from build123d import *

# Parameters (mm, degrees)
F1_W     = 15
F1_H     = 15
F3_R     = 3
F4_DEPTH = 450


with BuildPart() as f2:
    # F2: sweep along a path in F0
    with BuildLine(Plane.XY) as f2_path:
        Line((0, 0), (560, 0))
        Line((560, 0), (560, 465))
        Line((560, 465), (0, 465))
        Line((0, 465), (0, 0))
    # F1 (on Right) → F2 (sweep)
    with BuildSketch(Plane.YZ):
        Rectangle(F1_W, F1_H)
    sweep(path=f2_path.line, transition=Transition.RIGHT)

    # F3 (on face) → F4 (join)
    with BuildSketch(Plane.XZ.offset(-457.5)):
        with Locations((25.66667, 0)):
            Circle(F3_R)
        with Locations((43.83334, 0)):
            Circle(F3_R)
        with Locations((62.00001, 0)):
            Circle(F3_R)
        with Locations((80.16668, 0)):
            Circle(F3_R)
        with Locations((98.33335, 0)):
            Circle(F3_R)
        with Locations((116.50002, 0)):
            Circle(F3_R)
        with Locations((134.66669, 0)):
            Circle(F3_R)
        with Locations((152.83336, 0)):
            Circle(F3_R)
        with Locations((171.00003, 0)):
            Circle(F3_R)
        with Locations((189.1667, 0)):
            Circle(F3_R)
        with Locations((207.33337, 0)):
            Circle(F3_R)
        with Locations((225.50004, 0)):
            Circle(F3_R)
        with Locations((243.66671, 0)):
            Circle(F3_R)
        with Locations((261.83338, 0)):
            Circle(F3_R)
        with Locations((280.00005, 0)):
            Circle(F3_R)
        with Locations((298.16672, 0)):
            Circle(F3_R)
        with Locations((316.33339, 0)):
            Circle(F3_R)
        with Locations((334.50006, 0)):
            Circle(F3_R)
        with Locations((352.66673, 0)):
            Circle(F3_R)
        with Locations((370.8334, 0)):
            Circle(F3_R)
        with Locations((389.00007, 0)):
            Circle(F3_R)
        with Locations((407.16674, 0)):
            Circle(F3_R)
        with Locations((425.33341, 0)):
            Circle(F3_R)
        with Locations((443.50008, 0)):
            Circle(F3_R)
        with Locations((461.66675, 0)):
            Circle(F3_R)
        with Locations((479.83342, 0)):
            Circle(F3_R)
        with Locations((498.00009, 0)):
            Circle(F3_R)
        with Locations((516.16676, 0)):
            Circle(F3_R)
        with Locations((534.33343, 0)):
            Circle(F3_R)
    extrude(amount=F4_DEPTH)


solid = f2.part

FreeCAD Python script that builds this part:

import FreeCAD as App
import Part
import Sketcher
Q = App.Units.Quantity


def add_polygon(sketch, points):
    """Adds a closed chain of lines whose ends are joined by coincident constraints."""
    first, n = sketch.GeometryCount, len(points)
    for a, b in zip(points, points[1:] + points[:1]):
        sketch.addGeometry(Part.LineSegment(App.Vector(*a, 0), App.Vector(*b, 0)), False)
    for i in range(n):
        sketch.addConstraint(Sketcher.Constraint("Coincident", first + i, 2, first + (i + 1) % n, 1))

doc = App.newDocument("Part")
params = doc.addObject("Spreadsheet::Sheet", "Params")
for row, (alias, value) in enumerate([
    ("sketch1_width", "15 mm"),
    ("sketch2_width", "560 mm"),
    ("sketch2_height", "465 mm"),
    ("sketch3_diameter", "6 mm"),
    ("pad1_length", "450 mm"),
], start=1):
    params.set(f"A{row}", alias)
    params.set(f"B{row}", "=" + value)
    params.setAlias(f"B{row}", alias)

body = doc.addObject("PartDesign::Body", "Body")

# Sketch on YZ plane
sketch1 = body.newObject("Sketcher::SketchObject", "Sketch")
sketch1.AttachmentSupport = (doc.getObject("YZ_Plane"), [""])
sketch1.MapMode = "FlatFace"
add_polygon(sketch1, [(-7.5, 7.5), (-7.5, -7.5), (7.5, -7.5), (7.5, 7.5)])  # lines 0-3
sketch1.addConstraint([
    Sketcher.Constraint("Vertical", 0),
    Sketcher.Constraint("Horizontal", 1),
    Sketcher.Constraint("Vertical", 2),
    Sketcher.Constraint("Horizontal", 3),
    Sketcher.Constraint("Symmetric", 0, 2, 2, 2, -1, 1),
    Sketcher.Constraint("Equal", 3, 0),
    Sketcher.Constraint("DistanceX", 1, 1, 1, 2, Q("15 mm")),
])
sketch1.setExpression("Constraints[10]", "Params.sketch1_width")

# Sketch on XY plane
sketch2 = body.newObject("Sketcher::SketchObject", "Sketch001")
sketch2.AttachmentSupport = (doc.getObject("XY_Plane"), [""])
sketch2.MapMode = "FlatFace"
add_polygon(sketch2, [(0, 0), (560, 0), (560, 465), (0, 465)])  # lines 0-3
sketch2.addConstraint([
    Sketcher.Constraint("Horizontal", 0),
    Sketcher.Constraint("Vertical", 1),
    Sketcher.Constraint("Horizontal", 2),
    Sketcher.Constraint("Vertical", 3),
    Sketcher.Constraint("Coincident", 3, 2, -1, 1),
    Sketcher.Constraint("DistanceX", 0, 1, 0, 2, Q("560 mm")),
    Sketcher.Constraint("DistanceY", 1, 1, 1, 2, Q("465 mm")),
])
sketch2.setExpression("Constraints[9]", "Params.sketch2_width")
sketch2.setExpression("Constraints[10]", "Params.sketch2_height")
doc.recompute()

additivepipe = body.newObject("PartDesign::AdditivePipe", "AdditivePipe")
additivepipe.Profile = sketch1
additivepipe.Spine = (sketch2, ["Edge1", "Edge2", "Edge3", "Edge4"])
additivepipe.Transition = "Right corner"

# Sketch on XZ plane
sketch3 = body.newObject("Sketcher::SketchObject", "Sketch002")
sketch3.AttachmentSupport = (doc.getObject("XZ_Plane"), [""])
sketch3.MapMode = "FlatFace"
sketch3.AttachmentOffset = App.Placement(App.Vector(0, 0, -457.5), App.Rotation())
sketch3.addGeometry([
    Part.Circle(App.Vector(25.66667, 0, 0), App.Vector(0, 0, 1), 3),  # 0
    Part.Circle(App.Vector(43.83334, 0, 0), App.Vector(0, 0, 1), 3),  # 1
    Part.Circle(App.Vector(62.00001, 0, 0), App.Vector(0, 0, 1), 3),  # 2
    Part.Circle(App.Vector(80.16668, 0, 0), App.Vector(0, 0, 1), 3),  # 3
    Part.Circle(App.Vector(98.33335, 0, 0), App.Vector(0, 0, 1), 3),  # 4
    Part.Circle(App.Vector(116.50002, 0, 0), App.Vector(0, 0, 1), 3),  # 5
    Part.Circle(App.Vector(134.66669, 0, 0), App.Vector(0, 0, 1), 3),  # 6
    Part.Circle(App.Vector(152.83336, 0, 0), App.Vector(0, 0, 1), 3),  # 7
    Part.Circle(App.Vector(171.00003, 0, 0), App.Vector(0, 0, 1), 3),  # 8
    Part.Circle(App.Vector(189.1667, 0, 0), App.Vector(0, 0, 1), 3),  # 9
    Part.Circle(App.Vector(207.33337, 0, 0), App.Vector(0, 0, 1), 3),  # 10
    Part.Circle(App.Vector(225.50004, 0, 0), App.Vector(0, 0, 1), 3),  # 11
    Part.Circle(App.Vector(243.66671, 0, 0), App.Vector(0, 0, 1), 3),  # 12
    Part.Circle(App.Vector(261.83338, 0, 0), App.Vector(0, 0, 1), 3),  # 13
    Part.Circle(App.Vector(280.00005, 0, 0), App.Vector(0, 0, 1), 3),  # 14
    Part.Circle(App.Vector(298.16672, 0, 0), App.Vector(0, 0, 1), 3),  # 15
    Part.Circle(App.Vector(316.33339, 0, 0), App.Vector(0, 0, 1), 3),  # 16
    Part.Circle(App.Vector(334.50006, 0, 0), App.Vector(0, 0, 1), 3),  # 17
    Part.Circle(App.Vector(352.66673, 0, 0), App.Vector(0, 0, 1), 3),  # 18
    Part.Circle(App.Vector(370.8334, 0, 0), App.Vector(0, 0, 1), 3),  # 19
    Part.Circle(App.Vector(389.00007, 0, 0), App.Vector(0, 0, 1), 3),  # 20
    Part.Circle(App.Vector(407.16674, 0, 0), App.Vector(0, 0, 1), 3),  # 21
    Part.Circle(App.Vector(425.33341, 0, 0), App.Vector(0, 0, 1), 3),  # 22
    Part.Circle(App.Vector(443.50008, 0, 0), App.Vector(0, 0, 1), 3),  # 23
    Part.Circle(App.Vector(461.66675, 0, 0), App.Vector(0, 0, 1), 3),  # 24
    Part.Circle(App.Vector(479.83342, 0, 0), App.Vector(0, 0, 1), 3),  # 25
    Part.Circle(App.Vector(498.00009, 0, 0), App.Vector(0, 0, 1), 3),  # 26
    Part.Circle(App.Vector(516.16676, 0, 0), App.Vector(0, 0, 1), 3),  # 27
    Part.Circle(App.Vector(534.33343, 0, 0), App.Vector(0, 0, 1), 3),  # 28
], False)
sketch3.addConstraint([
    Sketcher.Constraint("Equal", 0, 1),
    Sketcher.Constraint("Equal", 1, 2),
    Sketcher.Constraint("Equal", 2, 3),
    Sketcher.Constraint("Equal", 3, 4),
    Sketcher.Constraint("Equal", 4, 5),
    Sketcher.Constraint("Equal", 5, 6),
    Sketcher.Constraint("Equal", 6, 7),
    Sketcher.Constraint("Equal", 7, 8),
    Sketcher.Constraint("Equal", 8, 9),
    Sketcher.Constraint("Equal", 9, 10),
    Sketcher.Constraint("Equal", 10, 11),
    Sketcher.Constraint("Equal", 11, 12),
    Sketcher.Constraint("Equal", 12, 13),
    Sketcher.Constraint("Equal", 13, 14),
    Sketcher.Constraint("Equal", 14, 15),
    Sketcher.Constraint("Equal", 15, 16),
    Sketcher.Constraint("Equal", 16, 17),
    Sketcher.Constraint("Equal", 17, 18),
    Sketcher.Constraint("Equal", 18, 19),
    Sketcher.Constraint("Equal", 19, 20),
    Sketcher.Constraint("Equal", 20, 21),
    Sketcher.Constraint("Equal", 21, 22),
    Sketcher.Constraint("Equal", 22, 23),
    Sketcher.Constraint("Equal", 23, 24),
    Sketcher.Constraint("Equal", 24, 25),
    Sketcher.Constraint("Equal", 25, 26),
    Sketcher.Constraint("Equal", 26, 27),
    Sketcher.Constraint("Equal", 27, 28),
    Sketcher.Constraint("PointOnObject", 0, 3, -1),
    Sketcher.Constraint("PointOnObject", 1, 3, -1),
    Sketcher.Constraint("PointOnObject", 2, 3, -1),
    Sketcher.Constraint("PointOnObject", 3, 3, -1),
    Sketcher.Constraint("PointOnObject", 4, 3, -1),
    Sketcher.Constraint("PointOnObject", 5, 3, -1),
    Sketcher.Constraint("PointOnObject", 6, 3, -1),
    Sketcher.Constraint("PointOnObject", 7, 3, -1),
    Sketcher.Constraint("PointOnObject", 8, 3, -1),
    Sketcher.Constraint("PointOnObject", 9, 3, -1),
    Sketcher.Constraint("PointOnObject", 10, 3, -1),
    Sketcher.Constraint("PointOnObject", 11, 3, -1),
    Sketcher.Constraint("PointOnObject", 12, 3, -1),
    Sketcher.Constraint("PointOnObject", 13, 3, -1),
    Sketcher.Constraint("PointOnObject", 14, 3, -1),
    Sketcher.Constraint("PointOnObject", 15, 3, -1),
    Sketcher.Constraint("PointOnObject", 16, 3, -1),
    Sketcher.Constraint("PointOnObject", 17, 3, -1),
    Sketcher.Constraint("PointOnObject", 18, 3, -1),
    Sketcher.Constraint("PointOnObject", 19, 3, -1),
    Sketcher.Constraint("PointOnObject", 20, 3, -1),
    Sketcher.Constraint("PointOnObject", 21, 3, -1),
    Sketcher.Constraint("PointOnObject", 22, 3, -1),
    Sketcher.Constraint("PointOnObject", 23, 3, -1),
    Sketcher.Constraint("PointOnObject", 24, 3, -1),
    Sketcher.Constraint("PointOnObject", 25, 3, -1),
    Sketcher.Constraint("PointOnObject", 26, 3, -1),
    Sketcher.Constraint("PointOnObject", 27, 3, -1),
    Sketcher.Constraint("PointOnObject", 28, 3, -1),
    Sketcher.Constraint("Diameter", 0, Q("6 mm")),
    Sketcher.Constraint("DistanceX", -1, 1, 9, 3, Q("189.1667 mm")),
    Sketcher.Constraint("DistanceX", -1, 1, 19, 3, Q("370.8334 mm")),
    Sketcher.Constraint("DistanceX", -1, 1, 0, 3, Q("25.66667 mm")),
    Sketcher.Constraint("DistanceX", -1, 1, 1, 3, Q("43.83334 mm")),
    Sketcher.Constraint("DistanceX", -1, 1, 2, 3, Q("62.00001 mm")),
    Sketcher.Constraint("DistanceX", -1, 1, 3, 3, Q("80.16668 mm")),
    Sketcher.Constraint("DistanceX", -1, 1, 4, 3, Q("98.33335 mm")),
    Sketcher.Constraint("DistanceX", -1, 1, 5, 3, Q("116.50002 mm")),
    Sketcher.Constraint("DistanceX", -1, 1, 6, 3, Q("134.66669 mm")),
    Sketcher.Constraint("DistanceX", -1, 1, 7, 3, Q("152.83336 mm")),
    Sketcher.Constraint("DistanceX", -1, 1, 8, 3, Q("171.00003 mm")),
    Sketcher.Constraint("DistanceX", -1, 1, 10, 3, Q("207.33337 mm")),
    Sketcher.Constraint("DistanceX", -1, 1, 11, 3, Q("225.50004 mm")),
    Sketcher.Constraint("DistanceX", -1, 1, 12, 3, Q("243.66671 mm")),
    Sketcher.Constraint("DistanceX", -1, 1, 13, 3, Q("261.83338 mm")),
    Sketcher.Constraint("DistanceX", -1, 1, 14, 3, Q("280.00005 mm")),
    Sketcher.Constraint("DistanceX", -1, 1, 15, 3, Q("298.16672 mm")),
    Sketcher.Constraint("DistanceX", -1, 1, 16, 3, Q("316.33339 mm")),
    Sketcher.Constraint("DistanceX", -1, 1, 17, 3, Q("334.50006 mm")),
    Sketcher.Constraint("DistanceX", -1, 1, 18, 3, Q("352.66673 mm")),
    Sketcher.Constraint("DistanceX", -1, 1, 20, 3, Q("389.00007 mm")),
    Sketcher.Constraint("DistanceX", -1, 1, 21, 3, Q("407.16674 mm")),
    Sketcher.Constraint("DistanceX", -1, 1, 22, 3, Q("425.33341 mm")),
    Sketcher.Constraint("DistanceX", -1, 1, 23, 3, Q("443.50008 mm")),
    Sketcher.Constraint("DistanceX", -1, 1, 24, 3, Q("461.66675 mm")),
    Sketcher.Constraint("DistanceX", -1, 1, 25, 3, Q("479.83342 mm")),
    Sketcher.Constraint("DistanceX", -1, 1, 26, 3, Q("498.00009 mm")),
    Sketcher.Constraint("DistanceX", -1, 1, 27, 3, Q("516.16676 mm")),
    Sketcher.Constraint("DistanceX", -1, 1, 28, 3, Q("534.33343 mm")),
])
sketch3.setExpression("Constraints[57]", "Params.sketch3_diameter")
pad1 = body.newObject("PartDesign::Pad", "Pad")
pad1.Profile = sketch3
pad1.setExpression("Length", "Params.pad1_length")

doc.recompute()
